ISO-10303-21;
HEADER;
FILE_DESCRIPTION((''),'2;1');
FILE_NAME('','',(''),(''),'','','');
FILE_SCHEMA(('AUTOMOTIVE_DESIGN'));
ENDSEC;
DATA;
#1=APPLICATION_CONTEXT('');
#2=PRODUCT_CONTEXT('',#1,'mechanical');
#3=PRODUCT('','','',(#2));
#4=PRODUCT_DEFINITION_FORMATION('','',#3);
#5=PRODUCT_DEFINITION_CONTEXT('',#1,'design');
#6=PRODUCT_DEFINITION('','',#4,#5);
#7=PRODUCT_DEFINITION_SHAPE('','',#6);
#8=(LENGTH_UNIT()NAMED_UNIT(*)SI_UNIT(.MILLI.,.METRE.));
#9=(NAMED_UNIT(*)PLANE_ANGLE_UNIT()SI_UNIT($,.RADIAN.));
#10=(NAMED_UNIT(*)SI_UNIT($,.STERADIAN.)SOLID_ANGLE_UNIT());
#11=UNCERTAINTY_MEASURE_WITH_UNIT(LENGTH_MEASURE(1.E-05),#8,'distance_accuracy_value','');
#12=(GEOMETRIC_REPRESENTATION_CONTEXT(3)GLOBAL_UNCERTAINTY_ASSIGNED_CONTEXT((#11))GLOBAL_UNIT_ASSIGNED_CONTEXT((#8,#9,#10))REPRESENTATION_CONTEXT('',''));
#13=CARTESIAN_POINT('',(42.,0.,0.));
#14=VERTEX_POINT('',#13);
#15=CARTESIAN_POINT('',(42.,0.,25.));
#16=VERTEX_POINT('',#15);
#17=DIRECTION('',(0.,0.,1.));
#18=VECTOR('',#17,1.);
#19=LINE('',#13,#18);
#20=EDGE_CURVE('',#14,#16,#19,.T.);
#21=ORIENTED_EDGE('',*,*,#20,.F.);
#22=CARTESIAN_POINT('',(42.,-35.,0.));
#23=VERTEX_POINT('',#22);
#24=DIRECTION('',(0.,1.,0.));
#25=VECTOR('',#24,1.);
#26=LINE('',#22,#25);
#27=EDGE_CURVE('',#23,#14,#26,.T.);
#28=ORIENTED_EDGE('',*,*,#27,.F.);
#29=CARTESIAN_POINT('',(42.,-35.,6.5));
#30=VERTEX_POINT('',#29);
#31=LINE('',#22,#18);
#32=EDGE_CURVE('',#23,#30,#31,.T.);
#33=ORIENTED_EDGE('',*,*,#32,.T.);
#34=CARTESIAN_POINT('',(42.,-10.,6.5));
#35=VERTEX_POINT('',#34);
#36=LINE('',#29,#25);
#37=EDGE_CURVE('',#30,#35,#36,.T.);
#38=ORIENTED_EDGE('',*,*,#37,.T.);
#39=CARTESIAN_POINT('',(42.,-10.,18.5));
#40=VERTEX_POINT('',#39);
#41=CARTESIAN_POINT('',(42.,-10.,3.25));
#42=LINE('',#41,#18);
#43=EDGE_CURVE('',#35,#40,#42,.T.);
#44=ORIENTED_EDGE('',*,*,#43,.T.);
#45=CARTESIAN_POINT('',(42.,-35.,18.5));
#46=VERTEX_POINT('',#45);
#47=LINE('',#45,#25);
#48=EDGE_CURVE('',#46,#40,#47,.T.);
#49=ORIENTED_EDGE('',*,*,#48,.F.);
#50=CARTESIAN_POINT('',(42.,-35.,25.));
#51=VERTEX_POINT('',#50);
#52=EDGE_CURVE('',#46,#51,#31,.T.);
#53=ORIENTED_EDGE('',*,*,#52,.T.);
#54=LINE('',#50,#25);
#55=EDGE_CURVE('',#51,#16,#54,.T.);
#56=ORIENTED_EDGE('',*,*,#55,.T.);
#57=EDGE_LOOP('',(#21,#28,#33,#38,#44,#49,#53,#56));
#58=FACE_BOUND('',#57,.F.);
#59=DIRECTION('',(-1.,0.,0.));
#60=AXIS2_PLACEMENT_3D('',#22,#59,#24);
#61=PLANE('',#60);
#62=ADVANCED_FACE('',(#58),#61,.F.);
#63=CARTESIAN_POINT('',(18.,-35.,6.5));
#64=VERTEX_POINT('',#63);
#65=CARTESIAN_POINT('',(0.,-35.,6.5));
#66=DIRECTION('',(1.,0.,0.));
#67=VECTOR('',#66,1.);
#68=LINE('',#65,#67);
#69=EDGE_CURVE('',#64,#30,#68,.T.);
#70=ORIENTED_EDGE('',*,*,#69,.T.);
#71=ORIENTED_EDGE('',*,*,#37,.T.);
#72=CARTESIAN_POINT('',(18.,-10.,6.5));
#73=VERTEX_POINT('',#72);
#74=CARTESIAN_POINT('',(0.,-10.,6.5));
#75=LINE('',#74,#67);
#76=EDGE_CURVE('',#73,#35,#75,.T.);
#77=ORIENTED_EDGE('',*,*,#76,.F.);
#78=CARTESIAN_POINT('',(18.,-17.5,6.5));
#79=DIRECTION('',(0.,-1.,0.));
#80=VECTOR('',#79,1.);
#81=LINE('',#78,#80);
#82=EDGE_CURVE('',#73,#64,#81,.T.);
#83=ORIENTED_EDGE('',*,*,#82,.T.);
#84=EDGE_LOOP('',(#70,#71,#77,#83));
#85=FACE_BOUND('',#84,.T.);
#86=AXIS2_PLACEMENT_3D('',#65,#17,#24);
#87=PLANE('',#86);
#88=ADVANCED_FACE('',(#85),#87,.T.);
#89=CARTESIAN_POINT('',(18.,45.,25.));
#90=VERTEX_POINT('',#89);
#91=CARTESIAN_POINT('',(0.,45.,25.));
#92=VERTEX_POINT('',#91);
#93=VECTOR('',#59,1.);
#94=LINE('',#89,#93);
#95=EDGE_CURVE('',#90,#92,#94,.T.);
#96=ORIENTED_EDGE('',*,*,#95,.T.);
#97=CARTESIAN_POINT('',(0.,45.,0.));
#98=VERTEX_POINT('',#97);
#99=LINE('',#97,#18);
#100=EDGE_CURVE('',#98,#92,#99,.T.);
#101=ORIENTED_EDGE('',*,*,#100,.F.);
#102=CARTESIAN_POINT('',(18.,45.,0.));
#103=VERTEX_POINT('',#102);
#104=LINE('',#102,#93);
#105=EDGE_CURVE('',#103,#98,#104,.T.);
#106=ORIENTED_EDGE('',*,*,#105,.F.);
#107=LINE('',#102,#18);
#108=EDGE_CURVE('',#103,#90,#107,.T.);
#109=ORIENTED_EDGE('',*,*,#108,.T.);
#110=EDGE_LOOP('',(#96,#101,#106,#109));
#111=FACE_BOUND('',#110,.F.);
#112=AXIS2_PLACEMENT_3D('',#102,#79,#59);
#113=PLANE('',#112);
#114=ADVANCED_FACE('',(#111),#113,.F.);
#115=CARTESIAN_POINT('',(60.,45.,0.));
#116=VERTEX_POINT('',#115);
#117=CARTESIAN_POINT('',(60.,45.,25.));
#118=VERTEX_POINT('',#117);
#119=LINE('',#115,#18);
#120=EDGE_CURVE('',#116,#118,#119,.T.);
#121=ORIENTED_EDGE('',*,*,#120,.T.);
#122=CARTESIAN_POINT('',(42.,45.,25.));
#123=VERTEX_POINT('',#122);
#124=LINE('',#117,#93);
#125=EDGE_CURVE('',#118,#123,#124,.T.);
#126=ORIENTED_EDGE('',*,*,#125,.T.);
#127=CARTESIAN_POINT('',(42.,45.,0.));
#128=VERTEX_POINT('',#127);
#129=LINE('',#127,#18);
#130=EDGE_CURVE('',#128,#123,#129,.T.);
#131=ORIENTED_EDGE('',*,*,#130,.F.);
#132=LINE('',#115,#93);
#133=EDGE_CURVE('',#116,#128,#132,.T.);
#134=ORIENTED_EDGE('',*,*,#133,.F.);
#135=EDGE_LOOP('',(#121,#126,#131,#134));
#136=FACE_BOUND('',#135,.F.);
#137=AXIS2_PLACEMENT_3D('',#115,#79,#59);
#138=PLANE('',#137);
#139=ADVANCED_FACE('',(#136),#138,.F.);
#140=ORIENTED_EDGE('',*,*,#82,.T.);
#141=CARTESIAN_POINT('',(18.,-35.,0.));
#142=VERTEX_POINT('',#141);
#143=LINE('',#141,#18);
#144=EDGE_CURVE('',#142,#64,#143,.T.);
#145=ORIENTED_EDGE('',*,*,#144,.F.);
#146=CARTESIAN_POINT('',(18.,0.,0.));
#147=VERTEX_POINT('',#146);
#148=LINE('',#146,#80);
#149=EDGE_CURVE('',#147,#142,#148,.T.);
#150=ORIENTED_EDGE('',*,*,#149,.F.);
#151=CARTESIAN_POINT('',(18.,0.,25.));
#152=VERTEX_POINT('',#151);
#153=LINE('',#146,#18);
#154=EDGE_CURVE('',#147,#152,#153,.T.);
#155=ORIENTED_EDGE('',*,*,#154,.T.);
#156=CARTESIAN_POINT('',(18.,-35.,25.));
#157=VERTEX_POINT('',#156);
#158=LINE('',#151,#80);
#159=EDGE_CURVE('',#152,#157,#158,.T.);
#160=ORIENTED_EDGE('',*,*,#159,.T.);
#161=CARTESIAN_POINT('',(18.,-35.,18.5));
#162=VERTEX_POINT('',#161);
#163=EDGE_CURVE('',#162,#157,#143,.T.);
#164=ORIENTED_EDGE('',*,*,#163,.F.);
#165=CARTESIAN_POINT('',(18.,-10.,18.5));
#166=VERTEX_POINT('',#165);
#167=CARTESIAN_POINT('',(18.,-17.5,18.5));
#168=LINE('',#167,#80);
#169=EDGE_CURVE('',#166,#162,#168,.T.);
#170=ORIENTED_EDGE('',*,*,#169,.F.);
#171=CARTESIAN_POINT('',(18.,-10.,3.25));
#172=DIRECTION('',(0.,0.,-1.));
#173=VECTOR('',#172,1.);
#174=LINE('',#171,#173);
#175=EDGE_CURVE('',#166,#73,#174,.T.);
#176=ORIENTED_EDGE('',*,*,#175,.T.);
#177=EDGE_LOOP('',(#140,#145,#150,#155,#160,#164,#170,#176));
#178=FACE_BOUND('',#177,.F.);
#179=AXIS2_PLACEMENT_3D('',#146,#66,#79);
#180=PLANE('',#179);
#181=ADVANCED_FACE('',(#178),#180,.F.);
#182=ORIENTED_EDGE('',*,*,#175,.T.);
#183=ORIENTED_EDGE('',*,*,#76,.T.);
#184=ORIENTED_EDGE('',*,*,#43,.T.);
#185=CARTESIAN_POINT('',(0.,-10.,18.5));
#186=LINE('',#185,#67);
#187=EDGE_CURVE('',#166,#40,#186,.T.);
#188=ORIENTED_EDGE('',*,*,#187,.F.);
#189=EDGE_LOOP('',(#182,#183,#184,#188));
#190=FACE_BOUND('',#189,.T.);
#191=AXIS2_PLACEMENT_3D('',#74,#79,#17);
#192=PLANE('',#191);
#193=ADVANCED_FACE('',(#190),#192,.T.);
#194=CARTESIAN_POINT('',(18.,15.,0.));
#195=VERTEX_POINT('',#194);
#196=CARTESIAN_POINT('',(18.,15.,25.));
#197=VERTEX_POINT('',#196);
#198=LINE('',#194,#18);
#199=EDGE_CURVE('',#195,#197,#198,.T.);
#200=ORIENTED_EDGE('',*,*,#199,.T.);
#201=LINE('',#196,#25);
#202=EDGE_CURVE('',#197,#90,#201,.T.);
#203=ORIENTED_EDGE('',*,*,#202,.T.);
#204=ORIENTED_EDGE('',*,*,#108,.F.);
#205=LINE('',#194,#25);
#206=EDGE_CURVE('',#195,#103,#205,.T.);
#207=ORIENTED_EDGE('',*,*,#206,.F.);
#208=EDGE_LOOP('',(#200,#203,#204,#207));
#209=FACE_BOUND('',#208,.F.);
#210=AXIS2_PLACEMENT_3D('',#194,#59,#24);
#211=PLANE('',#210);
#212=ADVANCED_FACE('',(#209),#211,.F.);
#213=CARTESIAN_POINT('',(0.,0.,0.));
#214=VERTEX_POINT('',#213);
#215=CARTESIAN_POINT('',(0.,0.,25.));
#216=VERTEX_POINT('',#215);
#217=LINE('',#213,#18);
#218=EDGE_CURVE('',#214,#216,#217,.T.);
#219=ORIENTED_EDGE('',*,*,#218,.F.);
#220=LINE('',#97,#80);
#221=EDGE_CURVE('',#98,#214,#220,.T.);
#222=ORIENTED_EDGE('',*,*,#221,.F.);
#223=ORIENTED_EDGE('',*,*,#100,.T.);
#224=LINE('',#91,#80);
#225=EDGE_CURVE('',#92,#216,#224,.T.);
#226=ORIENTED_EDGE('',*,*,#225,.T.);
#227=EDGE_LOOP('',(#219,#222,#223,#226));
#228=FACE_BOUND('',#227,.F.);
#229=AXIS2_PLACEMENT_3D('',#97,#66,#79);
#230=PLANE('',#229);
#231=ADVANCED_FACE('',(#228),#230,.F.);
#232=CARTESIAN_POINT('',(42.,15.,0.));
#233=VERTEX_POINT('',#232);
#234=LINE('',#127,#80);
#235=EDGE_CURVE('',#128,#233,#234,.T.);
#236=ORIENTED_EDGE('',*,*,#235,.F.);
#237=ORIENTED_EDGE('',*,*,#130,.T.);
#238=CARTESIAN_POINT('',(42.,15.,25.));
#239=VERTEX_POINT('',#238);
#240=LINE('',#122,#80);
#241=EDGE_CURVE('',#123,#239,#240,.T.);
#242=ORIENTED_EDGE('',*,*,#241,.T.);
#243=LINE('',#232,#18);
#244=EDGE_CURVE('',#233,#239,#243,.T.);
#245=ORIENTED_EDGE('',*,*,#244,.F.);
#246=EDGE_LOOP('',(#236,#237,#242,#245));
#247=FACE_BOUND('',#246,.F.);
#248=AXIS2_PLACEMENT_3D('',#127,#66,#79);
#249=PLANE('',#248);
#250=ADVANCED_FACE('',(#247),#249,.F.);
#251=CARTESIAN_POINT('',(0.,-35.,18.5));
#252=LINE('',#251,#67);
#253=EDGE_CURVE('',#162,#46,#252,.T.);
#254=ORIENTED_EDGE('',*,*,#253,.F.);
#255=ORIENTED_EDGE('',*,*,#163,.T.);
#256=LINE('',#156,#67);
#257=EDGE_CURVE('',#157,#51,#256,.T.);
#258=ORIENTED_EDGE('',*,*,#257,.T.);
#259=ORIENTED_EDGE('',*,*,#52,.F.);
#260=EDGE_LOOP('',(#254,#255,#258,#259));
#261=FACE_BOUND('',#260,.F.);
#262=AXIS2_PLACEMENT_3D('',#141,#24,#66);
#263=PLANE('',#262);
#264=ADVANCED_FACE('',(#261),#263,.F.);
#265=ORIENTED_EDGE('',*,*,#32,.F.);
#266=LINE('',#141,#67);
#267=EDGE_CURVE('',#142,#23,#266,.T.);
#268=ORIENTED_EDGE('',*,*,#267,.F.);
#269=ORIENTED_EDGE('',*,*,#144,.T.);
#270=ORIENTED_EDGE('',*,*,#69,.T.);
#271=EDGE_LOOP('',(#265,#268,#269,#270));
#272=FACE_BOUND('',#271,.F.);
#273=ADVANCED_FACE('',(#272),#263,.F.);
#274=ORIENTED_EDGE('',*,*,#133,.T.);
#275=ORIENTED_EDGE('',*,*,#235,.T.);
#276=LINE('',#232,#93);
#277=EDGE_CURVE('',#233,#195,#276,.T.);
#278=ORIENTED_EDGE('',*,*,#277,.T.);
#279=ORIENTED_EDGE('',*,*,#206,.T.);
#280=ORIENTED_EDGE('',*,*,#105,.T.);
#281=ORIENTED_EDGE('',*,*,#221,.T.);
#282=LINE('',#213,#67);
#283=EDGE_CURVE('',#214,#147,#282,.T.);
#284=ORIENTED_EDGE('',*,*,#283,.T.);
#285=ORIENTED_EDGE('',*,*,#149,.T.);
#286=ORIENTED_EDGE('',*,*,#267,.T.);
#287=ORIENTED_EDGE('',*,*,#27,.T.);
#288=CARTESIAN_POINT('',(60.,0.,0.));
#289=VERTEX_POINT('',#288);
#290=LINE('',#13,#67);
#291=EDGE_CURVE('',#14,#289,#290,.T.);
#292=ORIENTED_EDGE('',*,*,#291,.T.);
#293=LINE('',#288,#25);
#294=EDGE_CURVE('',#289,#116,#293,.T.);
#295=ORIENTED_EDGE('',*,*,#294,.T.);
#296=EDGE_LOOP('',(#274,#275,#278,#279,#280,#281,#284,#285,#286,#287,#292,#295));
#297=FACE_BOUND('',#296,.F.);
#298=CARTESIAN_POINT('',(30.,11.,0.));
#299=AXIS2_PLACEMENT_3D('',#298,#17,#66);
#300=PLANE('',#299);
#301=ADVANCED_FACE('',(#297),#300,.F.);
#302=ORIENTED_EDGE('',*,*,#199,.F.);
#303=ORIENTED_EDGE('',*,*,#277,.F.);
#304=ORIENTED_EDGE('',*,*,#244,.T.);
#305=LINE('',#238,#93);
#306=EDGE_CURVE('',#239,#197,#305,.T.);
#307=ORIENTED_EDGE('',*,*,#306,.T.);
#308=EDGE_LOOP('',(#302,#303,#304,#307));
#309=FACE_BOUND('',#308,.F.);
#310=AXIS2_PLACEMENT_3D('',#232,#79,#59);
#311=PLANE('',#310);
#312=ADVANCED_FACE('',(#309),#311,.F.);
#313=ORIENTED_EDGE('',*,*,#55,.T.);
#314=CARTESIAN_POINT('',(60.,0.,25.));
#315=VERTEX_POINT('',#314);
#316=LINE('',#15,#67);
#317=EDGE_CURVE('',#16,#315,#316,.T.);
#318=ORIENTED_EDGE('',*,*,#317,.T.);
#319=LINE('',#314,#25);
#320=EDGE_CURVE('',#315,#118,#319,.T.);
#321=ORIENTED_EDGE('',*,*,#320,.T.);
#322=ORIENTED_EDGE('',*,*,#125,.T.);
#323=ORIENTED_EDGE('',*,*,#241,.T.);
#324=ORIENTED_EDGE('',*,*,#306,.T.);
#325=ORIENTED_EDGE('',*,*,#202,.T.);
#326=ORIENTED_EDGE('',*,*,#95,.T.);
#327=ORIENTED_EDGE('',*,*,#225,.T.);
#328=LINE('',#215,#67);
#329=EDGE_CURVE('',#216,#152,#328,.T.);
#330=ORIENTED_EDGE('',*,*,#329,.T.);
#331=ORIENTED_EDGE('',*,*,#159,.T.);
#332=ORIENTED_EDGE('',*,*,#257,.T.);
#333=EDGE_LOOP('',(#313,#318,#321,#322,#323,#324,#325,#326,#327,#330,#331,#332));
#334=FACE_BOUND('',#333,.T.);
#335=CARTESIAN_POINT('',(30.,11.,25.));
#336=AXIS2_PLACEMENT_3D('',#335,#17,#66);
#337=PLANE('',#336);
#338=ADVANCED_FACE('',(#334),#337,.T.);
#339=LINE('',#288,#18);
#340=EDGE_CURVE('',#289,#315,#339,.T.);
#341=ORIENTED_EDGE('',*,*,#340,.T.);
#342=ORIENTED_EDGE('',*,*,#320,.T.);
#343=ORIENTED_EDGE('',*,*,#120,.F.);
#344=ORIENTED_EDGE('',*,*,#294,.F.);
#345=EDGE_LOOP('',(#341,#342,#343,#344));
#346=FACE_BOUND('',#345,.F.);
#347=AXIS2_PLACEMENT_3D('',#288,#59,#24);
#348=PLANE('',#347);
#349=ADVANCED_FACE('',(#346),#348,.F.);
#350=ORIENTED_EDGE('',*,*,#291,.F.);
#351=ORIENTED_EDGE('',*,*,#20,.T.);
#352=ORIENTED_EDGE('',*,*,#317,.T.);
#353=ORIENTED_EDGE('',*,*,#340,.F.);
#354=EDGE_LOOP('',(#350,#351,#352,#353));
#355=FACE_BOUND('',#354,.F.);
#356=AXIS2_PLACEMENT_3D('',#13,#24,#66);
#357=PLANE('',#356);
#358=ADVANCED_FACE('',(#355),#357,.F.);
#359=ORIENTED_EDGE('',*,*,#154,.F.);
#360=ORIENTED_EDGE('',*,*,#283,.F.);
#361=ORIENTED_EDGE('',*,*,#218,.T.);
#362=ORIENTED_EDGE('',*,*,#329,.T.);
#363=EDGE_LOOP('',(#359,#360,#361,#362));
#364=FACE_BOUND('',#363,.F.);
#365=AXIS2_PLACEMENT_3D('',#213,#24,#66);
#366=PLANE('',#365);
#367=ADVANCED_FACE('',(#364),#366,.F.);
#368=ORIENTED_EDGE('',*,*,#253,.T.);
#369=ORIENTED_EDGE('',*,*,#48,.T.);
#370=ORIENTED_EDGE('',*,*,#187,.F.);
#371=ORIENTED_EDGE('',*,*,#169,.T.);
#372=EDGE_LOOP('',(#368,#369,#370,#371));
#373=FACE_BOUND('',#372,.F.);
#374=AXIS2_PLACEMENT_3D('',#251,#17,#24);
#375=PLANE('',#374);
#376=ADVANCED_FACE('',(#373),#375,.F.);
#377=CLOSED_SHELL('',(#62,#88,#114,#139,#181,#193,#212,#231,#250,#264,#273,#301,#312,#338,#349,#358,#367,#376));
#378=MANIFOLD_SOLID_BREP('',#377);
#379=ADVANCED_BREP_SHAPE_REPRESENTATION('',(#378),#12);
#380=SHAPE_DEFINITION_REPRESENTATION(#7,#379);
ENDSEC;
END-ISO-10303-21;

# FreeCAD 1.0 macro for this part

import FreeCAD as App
import Part
import Sketcher
from FreeCAD import Vector


def add_polygon(sketch, points):
    """Adds a closed chain of lines whose ends are joined by coincident constraints."""
    first, n = sketch.GeometryCount, len(points)
    for a, b in zip(points, points[1:] + points[:1]):
        sketch.addGeometry(Part.LineSegment(App.Vector(*a, 0), App.Vector(*b, 0)), False)
    for i in range(n):
        sketch.addConstraint(Sketcher.Constraint("Coincident", first + i, 2, first + (i + 1) % n, 1))

doc = App.newDocument("Part")
body = doc.addObject("PartDesign::Body", "Body")

# Sketch on XY plane
sketch1 = body.newObject("Sketcher::SketchObject", "Sketch")
sketch1.AttachmentSupport = (doc.getObject("XY_Plane"), [""])
sketch1.MapMode = "FlatFace"
add_polygon(sketch1, [(0, 45), (0, 0), (18, 0), (18, -35), (42, -35), (42, 0), (60, 0), (60, 45), (42, 45), (42, 15), (18, 15), (18, 45)])  # lines 0-11
sketch1.addConstraint([
    Sketcher.Constraint("Vertical", 0),
    Sketcher.Constraint("Horizontal", 1),
    Sketcher.Constraint("Vertical", 2),
    Sketcher.Constraint("Horizontal", 3),
    Sketcher.Constraint("Vertical", 4),
    Sketcher.Constraint("Horizontal", 5),
    Sketcher.Constraint("Vertical", 6),
    Sketcher.Constraint("Horizontal", 7),
    Sketcher.Constraint("Vertical", 8),
    Sketcher.Constraint("Horizontal", 9),
    Sketcher.Constraint("Vertical", 10),
    Sketcher.Constraint("Horizontal", 11),
    Sketcher.Constraint("Coincident", 0, 2, -1, 1),
    Sketcher.Constraint("PointOnObject", 4, 2, -1),
    Sketcher.Constraint("Horizontal", 7, 2, 10, 2),
    Sketcher.Constraint("Vertical", 4, 2, 7, 2),
    Sketcher.Constraint("Vertical", 2, 2, 9, 2),
    Sketcher.Constraint("Equal", 1, 5),
    Sketcher.Constraint("DistanceX", 1, 1, 1, 2, 18.0),
    Sketcher.Constraint("DistanceX", 3, 1, 3, 2, 24.0),
    Sketcher.Constraint("DistanceY", 0, 2, 0, 1, 45.0),
    Sketcher.Constraint("DistanceY", 2, 2, 2, 1, 35.0),
    Sketcher.Constraint("DistanceY", 8, 2, 8, 1, 30.0),
])
pad1 = body.newObject("PartDesign::Pad", "Pad")
pad1.Profile = sketch1
pad1.Length = 25

# Sketch on YZ plane
sketch2 = body.newObject("Sketcher::SketchObject", "Sketch001")
sketch2.AttachmentSupport = (doc.getObject("YZ_Plane"), [""])
sketch2.MapMode = "FlatFace"
add_polygon(sketch2, [(-35, 18.5), (-35, 6.5), (-10, 6.5), (-10, 18.5)])  # lines 0-3
sketch2.addConstraint([
    Sketcher.Constraint("Vertical", 0),
    Sketcher.Constraint("Horizontal", 1),
    Sketcher.Constraint("Vertical", 2),
    Sketcher.Constraint("Horizontal", 3),
    Sketcher.Constraint("DistanceX", 1, 1, 1, 2, 25.0),
    Sketcher.Constraint("DistanceY", 0, 2, 0, 1, 12.0),
    Sketcher.Constraint("DistanceX", 0, 2, -1, 1, 35.0),
    Sketcher.Constraint("DistanceY", -1, 1, 0, 2, 6.5),
])
pocket1 = body.newObject("PartDesign::Pocket", "Pocket")
pocket1.Profile = sketch2
pocket1.Type = "ThroughAll"
pocket1.Reversed = True

doc.recompute()
